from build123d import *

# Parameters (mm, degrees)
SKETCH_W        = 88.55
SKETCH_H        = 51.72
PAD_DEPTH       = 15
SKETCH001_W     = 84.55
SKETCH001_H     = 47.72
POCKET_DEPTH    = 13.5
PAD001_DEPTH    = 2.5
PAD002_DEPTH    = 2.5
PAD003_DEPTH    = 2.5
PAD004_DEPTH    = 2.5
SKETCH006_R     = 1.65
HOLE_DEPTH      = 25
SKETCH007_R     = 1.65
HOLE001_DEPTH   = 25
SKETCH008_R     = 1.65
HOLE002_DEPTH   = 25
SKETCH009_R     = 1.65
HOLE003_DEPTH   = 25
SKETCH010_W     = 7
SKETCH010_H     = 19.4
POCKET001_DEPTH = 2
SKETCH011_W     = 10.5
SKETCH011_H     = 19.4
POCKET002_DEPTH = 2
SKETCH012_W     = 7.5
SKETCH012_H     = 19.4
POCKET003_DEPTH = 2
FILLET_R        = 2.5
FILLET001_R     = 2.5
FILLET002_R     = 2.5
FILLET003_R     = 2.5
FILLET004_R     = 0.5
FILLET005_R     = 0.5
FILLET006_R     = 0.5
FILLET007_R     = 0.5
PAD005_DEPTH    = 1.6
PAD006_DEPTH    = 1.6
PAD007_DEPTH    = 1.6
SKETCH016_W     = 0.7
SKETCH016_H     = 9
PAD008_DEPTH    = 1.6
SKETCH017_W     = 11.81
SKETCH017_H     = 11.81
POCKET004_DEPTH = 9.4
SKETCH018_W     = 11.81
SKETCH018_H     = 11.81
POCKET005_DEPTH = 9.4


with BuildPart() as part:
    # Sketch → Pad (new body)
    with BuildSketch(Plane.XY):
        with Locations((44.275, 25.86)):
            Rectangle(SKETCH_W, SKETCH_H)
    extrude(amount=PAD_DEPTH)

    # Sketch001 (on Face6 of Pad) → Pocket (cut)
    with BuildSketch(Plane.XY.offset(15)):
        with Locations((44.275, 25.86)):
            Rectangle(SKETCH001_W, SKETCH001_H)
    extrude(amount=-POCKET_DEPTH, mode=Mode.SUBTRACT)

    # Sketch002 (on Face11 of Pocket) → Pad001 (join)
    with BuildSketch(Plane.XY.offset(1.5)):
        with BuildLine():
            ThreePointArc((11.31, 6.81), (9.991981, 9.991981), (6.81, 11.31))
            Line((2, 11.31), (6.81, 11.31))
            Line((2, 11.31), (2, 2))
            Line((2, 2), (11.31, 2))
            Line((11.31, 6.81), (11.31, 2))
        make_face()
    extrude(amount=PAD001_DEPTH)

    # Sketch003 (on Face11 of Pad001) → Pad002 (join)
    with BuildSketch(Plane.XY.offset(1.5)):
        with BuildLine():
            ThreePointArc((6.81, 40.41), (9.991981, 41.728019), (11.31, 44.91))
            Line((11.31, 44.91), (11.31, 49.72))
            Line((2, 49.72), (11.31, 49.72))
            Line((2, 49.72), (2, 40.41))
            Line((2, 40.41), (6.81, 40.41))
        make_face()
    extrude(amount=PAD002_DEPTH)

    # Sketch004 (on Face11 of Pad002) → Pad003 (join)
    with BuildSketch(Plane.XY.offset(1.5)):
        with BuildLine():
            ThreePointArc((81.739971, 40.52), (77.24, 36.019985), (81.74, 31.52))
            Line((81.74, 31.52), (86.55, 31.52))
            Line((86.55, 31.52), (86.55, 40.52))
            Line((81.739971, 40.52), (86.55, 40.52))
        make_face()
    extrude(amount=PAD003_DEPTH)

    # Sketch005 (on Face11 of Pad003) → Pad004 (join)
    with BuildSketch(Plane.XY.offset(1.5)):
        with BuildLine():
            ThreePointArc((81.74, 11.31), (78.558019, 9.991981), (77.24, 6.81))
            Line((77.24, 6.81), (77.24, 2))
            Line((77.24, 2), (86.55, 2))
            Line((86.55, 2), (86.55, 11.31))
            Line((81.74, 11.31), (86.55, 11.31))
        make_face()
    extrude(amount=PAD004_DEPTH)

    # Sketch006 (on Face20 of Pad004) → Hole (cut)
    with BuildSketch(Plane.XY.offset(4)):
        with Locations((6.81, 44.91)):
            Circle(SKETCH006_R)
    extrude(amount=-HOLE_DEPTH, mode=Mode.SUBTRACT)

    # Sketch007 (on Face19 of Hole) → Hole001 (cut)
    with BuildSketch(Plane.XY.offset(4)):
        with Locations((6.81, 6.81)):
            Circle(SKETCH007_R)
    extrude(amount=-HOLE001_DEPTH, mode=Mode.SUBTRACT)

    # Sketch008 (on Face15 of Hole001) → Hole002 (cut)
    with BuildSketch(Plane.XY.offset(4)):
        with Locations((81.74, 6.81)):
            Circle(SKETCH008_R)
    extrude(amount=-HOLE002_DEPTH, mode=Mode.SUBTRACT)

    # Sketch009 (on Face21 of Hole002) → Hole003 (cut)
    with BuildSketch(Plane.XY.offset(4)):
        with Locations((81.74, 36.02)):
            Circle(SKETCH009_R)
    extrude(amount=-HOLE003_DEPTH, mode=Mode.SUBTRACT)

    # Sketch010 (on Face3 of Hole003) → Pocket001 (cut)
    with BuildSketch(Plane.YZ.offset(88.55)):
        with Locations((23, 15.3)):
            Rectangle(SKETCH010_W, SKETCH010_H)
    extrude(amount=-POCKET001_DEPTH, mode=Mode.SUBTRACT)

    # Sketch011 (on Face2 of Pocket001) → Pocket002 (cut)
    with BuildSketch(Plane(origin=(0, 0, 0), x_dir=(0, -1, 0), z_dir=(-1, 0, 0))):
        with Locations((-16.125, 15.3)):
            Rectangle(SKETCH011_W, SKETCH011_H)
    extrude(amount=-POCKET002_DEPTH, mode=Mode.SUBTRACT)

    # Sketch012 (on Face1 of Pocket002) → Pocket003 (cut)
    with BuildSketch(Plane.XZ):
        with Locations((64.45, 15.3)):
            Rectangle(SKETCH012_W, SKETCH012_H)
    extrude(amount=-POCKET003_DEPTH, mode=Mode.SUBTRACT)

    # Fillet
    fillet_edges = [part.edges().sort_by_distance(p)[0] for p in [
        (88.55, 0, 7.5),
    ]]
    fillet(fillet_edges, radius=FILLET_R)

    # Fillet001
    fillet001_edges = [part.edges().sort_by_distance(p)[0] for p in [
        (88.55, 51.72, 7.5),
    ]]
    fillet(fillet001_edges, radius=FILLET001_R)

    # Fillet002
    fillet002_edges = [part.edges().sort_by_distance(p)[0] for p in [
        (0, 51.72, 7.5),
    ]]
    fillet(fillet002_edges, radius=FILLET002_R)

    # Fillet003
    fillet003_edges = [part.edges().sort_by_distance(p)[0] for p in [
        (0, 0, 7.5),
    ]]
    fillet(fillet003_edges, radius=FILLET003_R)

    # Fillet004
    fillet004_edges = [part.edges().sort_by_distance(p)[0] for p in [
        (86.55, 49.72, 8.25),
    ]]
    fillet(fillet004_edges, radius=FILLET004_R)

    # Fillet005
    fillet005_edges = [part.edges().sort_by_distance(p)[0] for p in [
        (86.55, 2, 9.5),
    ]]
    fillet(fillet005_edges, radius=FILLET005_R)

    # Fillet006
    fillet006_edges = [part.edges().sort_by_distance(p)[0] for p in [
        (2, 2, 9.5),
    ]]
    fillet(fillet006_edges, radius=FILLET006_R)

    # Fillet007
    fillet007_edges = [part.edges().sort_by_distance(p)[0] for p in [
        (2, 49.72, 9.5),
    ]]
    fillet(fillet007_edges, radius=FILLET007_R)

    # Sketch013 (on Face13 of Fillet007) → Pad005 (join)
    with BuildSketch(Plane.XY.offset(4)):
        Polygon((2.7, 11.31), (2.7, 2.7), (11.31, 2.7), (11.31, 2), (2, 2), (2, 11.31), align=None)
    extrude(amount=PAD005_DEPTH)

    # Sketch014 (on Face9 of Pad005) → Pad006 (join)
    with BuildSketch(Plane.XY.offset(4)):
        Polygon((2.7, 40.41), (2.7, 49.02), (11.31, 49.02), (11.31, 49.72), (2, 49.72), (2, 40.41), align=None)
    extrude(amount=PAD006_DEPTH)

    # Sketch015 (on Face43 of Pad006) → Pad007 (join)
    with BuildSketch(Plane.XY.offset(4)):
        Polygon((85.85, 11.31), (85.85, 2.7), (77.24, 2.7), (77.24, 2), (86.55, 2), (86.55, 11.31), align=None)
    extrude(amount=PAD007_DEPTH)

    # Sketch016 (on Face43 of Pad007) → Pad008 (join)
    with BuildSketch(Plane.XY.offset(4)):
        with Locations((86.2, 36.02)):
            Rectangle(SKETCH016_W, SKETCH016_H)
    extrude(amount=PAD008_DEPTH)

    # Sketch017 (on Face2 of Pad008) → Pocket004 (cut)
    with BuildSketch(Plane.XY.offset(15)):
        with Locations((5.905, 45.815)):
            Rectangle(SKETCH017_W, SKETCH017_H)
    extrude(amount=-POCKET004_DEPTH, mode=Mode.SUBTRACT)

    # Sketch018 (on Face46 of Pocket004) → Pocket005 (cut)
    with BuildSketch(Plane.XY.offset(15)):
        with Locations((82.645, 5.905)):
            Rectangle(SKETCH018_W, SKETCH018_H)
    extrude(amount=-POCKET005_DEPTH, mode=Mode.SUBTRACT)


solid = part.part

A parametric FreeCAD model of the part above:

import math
import FreeCAD as App
import Part
import Sketcher
from FreeCAD import Vector
Q = App.Units.Quantity


def edges_at(feature, points):
    """Names of the edges that pass closest to the given points."""
    edges = feature.Shape.Edges
    near = lambda p: min(range(len(edges)), key=lambda i: edges[i].distToShape(Part.Vertex(*p))[0])
    return sorted({f"Edge{near(p) + 1}" for p in points})


def add_polygon(sketch, points):
    """Adds a closed chain of lines whose ends are joined by coincident constraints."""
    first, n = sketch.GeometryCount, len(points)
    for a, b in zip(points, points[1:] + points[:1]):
        sketch.addGeometry(Part.LineSegment(App.Vector(*a, 0), App.Vector(*b, 0)), False)
    for i in range(n):
        sketch.addConstraint(Sketcher.Constraint("Coincident", first + i, 2, first + (i + 1) % n, 1))

doc = App.newDocument("Part")
body = doc.addObject("PartDesign::Body", "Body")

# Sketch on XY plane
sketch1 = body.newObject("Sketcher::SketchObject", "Sketch")
sketch1.AttachmentSupport = (doc.getObject("XY_Plane"), [""])
sketch1.MapMode = "FlatFace"
add_polygon(sketch1, [(0, 52), (0, 0), (89, 0), (89, 52)])  # lines 0-3
sketch1.addConstraint(Sketcher.Constraint("Vertical", 0))
sketch1.addConstraint(Sketcher.Constraint("Horizontal", 1))
sketch1.addConstraint(Sketcher.Constraint("Vertical", 2))
sketch1.addConstraint(Sketcher.Constraint("Horizontal", 3))
sketch1.addConstraint(Sketcher.Constraint("Coincident", 0, 2, -1, 1))
sketch1.addConstraint(Sketcher.Constraint("DistanceX", 1, 1, 1, 2, Q("88.55 mm")))
sketch1.addConstraint(Sketcher.Constraint("DistanceY", 0, 2, 0, 1, Q("51.72 mm")))
pad1 = body.newObject("PartDesign::Pad", "Pad")
pad1.Profile = sketch1
pad1.Length = 15

# Sketch on XY plane
sketch2 = body.newObject("Sketcher::SketchObject", "Sketch001")
sketch2.AttachmentSupport = (doc.getObject("XY_Plane"), [""])
sketch2.MapMode = "FlatFace"
sketch2.AttachmentOffset = App.Placement(Vector(0, 0, 15), App.Rotation())
add_polygon(sketch2, [(2, 50), (2, 2), (87, 2), (87, 50)])  # lines 0-3
sketch2.addConstraint(Sketcher.Constraint("Vertical", 0))
sketch2.addConstraint(Sketcher.Constraint("Horizontal", 1))
sketch2.addConstraint(Sketcher.Constraint("Vertical", 2))
sketch2.addConstraint(Sketcher.Constraint("Horizontal", 3))
sketch2.addConstraint(Sketcher.Constraint("DistanceX", -1, 1, 0, 2, Q("2 mm")))
sketch2.addConstraint(Sketcher.Constraint("DistanceY", -1, 1, 0, 2, Q("2 mm")))
sketch2.addConstraint(Sketcher.Constraint("DistanceX", 1, 1, 1, 2, Q("84.55 mm")))
sketch2.addConstraint(Sketcher.Constraint("DistanceY", 0, 2, 0, 1, Q("47.72 mm")))
pocket1 = body.newObject("PartDesign::Pocket", "Pocket")
pocket1.Profile = sketch2
pocket1.Length = 13.5

# Sketch on XY plane
sketch3 = body.newObject("Sketcher::SketchObject", "Sketch002")
sketch3.AttachmentSupport = (doc.getObject("XY_Plane"), [""])
sketch3.MapMode = "FlatFace"
sketch3.AttachmentOffset = App.Placement(Vector(0, 0, 1.5), App.Rotation())
sketch3.addGeometry(Part.ArcOfCircle(Part.Circle(Vector(6.8, 6.8, 0), Vector(0, 0, 1), 4.5), math.radians(0), math.radians(90)), False)
sketch3.addGeometry(Part.LineSegment(Vector(6.8, 11.3, 0), Vector(2, 11.3, 0)), False)
sketch3.addGeometry(Part.LineSegment(Vector(2, 11.3, 0), Vector(2, 2, 0)), False)
sketch3.addGeometry(Part.LineSegment(Vector(2, 2, 0), Vector(11.3, 2, 0)), False)
sketch3.addGeometry(Part.LineSegment(Vector(11.3, 2, 0), Vector(11.3, 6.8, 0)), False)
sketch3.addConstraint(Sketcher.Constraint("Tangent", 0, 2, 1, 1))
sketch3.addConstraint(Sketcher.Constraint("Coincident", 1, 2, 2, 1))
sketch3.addConstraint(Sketcher.Constraint("Coincident", 2, 2, 3, 1))
sketch3.addConstraint(Sketcher.Constraint("Coincident", 3, 2, 4, 1))
sketch3.addConstraint(Sketcher.Constraint("Tangent", 4, 2, 0, 1))
sketch3.addConstraint(Sketcher.Constraint("Horizontal", 1))
sketch3.addConstraint(Sketcher.Constraint("Vertical", 2))
sketch3.addConstraint(Sketcher.Constraint("Horizontal", 3))
sketch3.addConstraint(Sketcher.Constraint("Vertical", 4))
sketch3.addConstraint(Sketcher.Constraint("Equal", 3, 2))
sketch3.addConstraint(Sketcher.Constraint("Radius", 0, Q("4.499998 mm")))
sketch3.addConstraint(Sketcher.Constraint("DistanceX", -1, 1, 1, 2, Q("2 mm")))
sketch3.addConstraint(Sketcher.Constraint("DistanceY", -1, 1, 2, 2, Q("2 mm")))
sketch3.addConstraint(Sketcher.Constraint("DistanceX", 1, 2, 1, 1, Q("4.81 mm")))
pad2 = body.newObject("PartDesign::Pad", "Pad001")
pad2.Profile = sketch3
pad2.Length = 2.5

# Sketch on XY plane
sketch4 = body.newObject("Sketcher::SketchObject", "Sketch003")
sketch4.AttachmentSupport = (doc.getObject("XY_Plane"), [""])
sketch4.MapMode = "FlatFace"
sketch4.AttachmentOffset = App.Placement(Vector(0, 0, 1.5), App.Rotation())
sketch4.addGeometry(Part.ArcOfCircle(Part.Circle(Vector(6.8, 44.9, 0), Vector(0, 0, 1), 4.5), math.radians(-90), math.radians(0)), False)
sketch4.addGeometry(Part.LineSegment(Vector(11.3, 44.9, 0), Vector(11.3, 49.7, 0)), False)
sketch4.addGeometry(Part.LineSegment(Vector(11.3, 49.7, 0), Vector(2, 49.7, 0)), False)
sketch4.addGeometry(Part.LineSegment(Vector(2, 49.7, 0), Vector(2, 40.4, 0)), False)
sketch4.addGeometry(Part.LineSegment(Vector(2, 40.4, 0), Vector(6.8, 40.4, 0)), False)
sketch4.addConstraint(Sketcher.Constraint("Tangent", 0, 2, 1, 1))
sketch4.addConstraint(Sketcher.Constraint("Coincident", 1, 2, 2, 1))
sketch4.addConstraint(Sketcher.Constraint("Coincident", 2, 2, 3, 1))
sketch4.addConstraint(Sketcher.Constraint("Coincident", 3, 2, 4, 1))
sketch4.addConstraint(Sketcher.Constraint("Tangent", 4, 2, 0, 1))
sketch4.addConstraint(Sketcher.Constraint("Vertical", 1))
sketch4.addConstraint(Sketcher.Constraint("Horizontal", 2))
sketch4.addConstraint(Sketcher.Constraint("Vertical", 3))
sketch4.addConstraint(Sketcher.Constraint("Horizontal", 4))
sketch4.addConstraint(Sketcher.Constraint("Equal", 4, 1))
sketch4.addConstraint(Sketcher.Constraint("Radius", 0, Q("4.499998 mm")))
sketch4.addConstraint(Sketcher.Constraint("DistanceX", -1, 1, 2, 2, Q("2 mm")))
sketch4.addConstraint(Sketcher.Constraint("DistanceX", 2, 2, 2, 1, Q("9.31 mm")))
sketch4.addConstraint(Sketcher.Constraint("DistanceY", -1, 1, 0, 3, Q("44.909998 mm")))
pad3 = body.newObject("PartDesign::Pad", "Pad002")
pad3.Profile = sketch4
pad3.Length = 2.5

# Sketch on XY plane
sketch5 = body.newObject("Sketcher::SketchObject", "Sketch004")
sketch5.AttachmentSupport = (doc.getObject("XY_Plane"), [""])
sketch5.MapMode = "FlatFace"
sketch5.AttachmentOffset = App.Placement(Vector(0, 0, 1.5), App.Rotation())
sketch5.addGeometry(Part.ArcOfCircle(Part.Circle(Vector(81.7, 36, 0), Vector(0, 0, 1), 4.5), math.radians(90), math.radians(270)), False)
sketch5.addGeometry(Part.LineSegment(Vector(81.7, 31.5, 0), Vector(86.5, 31.5, 0)), False)
sketch5.addGeometry(Part.LineSegment(Vector(86.5, 31.5, 0), Vector(86.5, 40.5, 0)), False)
sketch5.addGeometry(Part.LineSegment(Vector(86.5, 40.5, 0), Vector(81.7, 40.5, 0)), False)
sketch5.addConstraint(Sketcher.Constraint("Tangent", 0, 2, 1, 1))
sketch5.addConstraint(Sketcher.Constraint("Coincident", 1, 2, 2, 1))
sketch5.addConstraint(Sketcher.Constraint("Coincident", 2, 2, 3, 1))
sketch5.addConstraint(Sketcher.Constraint("Coincident", 3, 2, 0, 1))
sketch5.addConstraint(Sketcher.Constraint("Horizontal", 1))
sketch5.addConstraint(Sketcher.Constraint("Vertical", 2))
sketch5.addConstraint(Sketcher.Constraint("Horizontal", 3))
sketch5.addConstraint(Sketcher.Constraint("Radius", 0, Q("4.5 mm")))
sketch5.addConstraint(Sketcher.Constraint("DistanceX", 1, 1, 1, 2, Q("4.81 mm")))
sketch5.addConstraint(Sketcher.Constraint("DistanceX", -1, 1, 0, 3, Q("81.74 mm")))
sketch5.addConstraint(Sketcher.Constraint("DistanceY", -1, 1, 0, 3, Q("36.02 mm")))
sketch5.addConstraint(Sketcher.Constraint("DistanceX", 3, 2, 3, 1, Q("4.810029 mm")))
pad4 = body.newObject("PartDesign::Pad", "Pad003")
pad4.Profile = sketch5
pad4.Length = 2.5

# Sketch on XY plane
sketch6 = body.newObject("Sketcher::SketchObject", "Sketch005")
sketch6.AttachmentSupport = (doc.getObject("XY_Plane"), [""])
sketch6.MapMode = "FlatFace"
sketch6.AttachmentOffset = App.Placement(Vector(0, 0, 1.5), App.Rotation())
sketch6.addGeometry(Part.ArcOfCircle(Part.Circle(Vector(81.7, 6.8, 0), Vector(0, 0, 1), 4.5), math.radians(90), math.radians(180)), False)
sketch6.addGeometry(Part.LineSegment(Vector(77.2, 6.8, 0), Vector(77.2, 2, 0)), False)
sketch6.addGeometry(Part.LineSegment(Vector(77.2, 2, 0), Vector(86.5, 2, 0)), False)
sketch6.addGeometry(Part.LineSegment(Vector(86.5, 2, 0), Vector(86.5, 11.3, 0)), False)
sketch6.addGeometry(Part.LineSegment(Vector(86.5, 11.3, 0), Vector(81.7, 11.3, 0)), False)
sketch6.addConstraint(Sketcher.Constraint("Tangent", 0, 2, 1, 1))
sketch6.addConstraint(Sketcher.Constraint("Coincident", 1, 2, 2, 1))
sketch6.addConstraint(Sketcher.Constraint("Coincident", 2, 2, 3, 1))
sketch6.addConstraint(Sketcher.Constraint("Coincident", 3, 2, 4, 1))
sketch6.addConstraint(Sketcher.Constraint("Tangent", 4, 2, 0, 1))
sketch6.addConstraint(Sketcher.Constraint("Vertical", 1))
sketch6.addConstraint(Sketcher.Constraint("Horizontal", 2))
sketch6.addConstraint(Sketcher.Constraint("Vertical", 3))
sketch6.addConstraint(Sketcher.Constraint("Horizontal", 4))
sketch6.addConstraint(Sketcher.Constraint("Equal", 4, 1))
sketch6.addConstraint(Sketcher.Constraint("Radius", 0, Q("4.499998 mm")))
sketch6.addConstraint(Sketcher.Constraint("DistanceY", -1, 1, 1, 2, Q("2 mm")))
sketch6.addConstraint(Sketcher.Constraint("DistanceX", 2, 1, 2, 2, Q("9.31 mm")))
sketch6.addConstraint(Sketcher.Constraint("DistanceX", -1, 1, 0, 3, Q("81.739998 mm")))
pad5 = body.newObject("PartDesign::Pad", "Pad004")
pad5.Profile = sketch6
pad5.Length = 2.5

# Sketch on XY plane
sketch7 = body.newObject("Sketcher::SketchObject", "Sketch006")
sketch7.AttachmentSupport = (doc.getObject("XY_Plane"), [""])
sketch7.MapMode = "FlatFace"
sketch7.AttachmentOffset = App.Placement(Vector(0, 0, 4), App.Rotation())
sketch7.addGeometry(Part.Circle(Vector(6.8, 44.9, 0), Vector(0, 0, 1), 1.6), False)
sketch7.addConstraint(Sketcher.Constraint("Diameter", 0, Q("3.3 mm")))
sketch7.addConstraint(Sketcher.Constraint("DistanceX", -1, 1, 0, 3, Q("6.81 mm")))
sketch7.addConstraint(Sketcher.Constraint("DistanceY", -1, 1, 0, 3, Q("44.91 mm")))
pocket2 = body.newObject("PartDesign::Pocket", "Pocket001")
pocket2.Profile = sketch7
pocket2.Length = 25

# Sketch on XY plane
sketch8 = body.newObject("Sketcher::SketchObject", "Sketch007")
sketch8.AttachmentSupport = (doc.getObject("XY_Plane"), [""])
sketch8.MapMode = "FlatFace"
sketch8.AttachmentOffset = App.Placement(Vector(0, 0, 4), App.Rotation())
sketch8.addGeometry(Part.Circle(Vector(6.8, 6.8, 0), Vector(0, 0, 1), 1.6), False)
sketch8.addConstraint(Sketcher.Constraint("Diameter", 0, Q("3.3 mm")))
sketch8.addConstraint(Sketcher.Constraint("DistanceX", -1, 1, 0, 3, Q("6.81 mm")))
sketch8.addConstraint(Sketcher.Constraint("DistanceY", -1, 1, 0, 3, Q("6.81 mm")))
pocket3 = body.newObject("PartDesign::Pocket", "Pocket002")
pocket3.Profile = sketch8
pocket3.Length = 25

# Sketch on XY plane
sketch9 = body.newObject("Sketcher::SketchObject", "Sketch008")
sketch9.AttachmentSupport = (doc.getObject("XY_Plane"), [""])
sketch9.MapMode = "FlatFace"
sketch9.AttachmentOffset = App.Placement(Vector(0, 0, 4), App.Rotation())
sketch9.addGeometry(Part.Circle(Vector(81.7, 6.8, 0), Vector(0, 0, 1), 1.6), False)
sketch9.addConstraint(Sketcher.Constraint("Diameter", 0, Q("3.3 mm")))
sketch9.addConstraint(Sketcher.Constraint("DistanceX", -1, 1, 0, 3, Q("81.74 mm")))
sketch9.addConstraint(Sketcher.Constraint("DistanceY", -1, 1, 0, 3, Q("6.81 mm")))
pocket4 = body.newObject("PartDesign::Pocket", "Pocket003")
pocket4.Profile = sketch9
pocket4.Length = 25

# Sketch on XY plane
sketch10 = body.newObject("Sketcher::SketchObject", "Sketch009")
sketch10.AttachmentSupport = (doc.getObject("XY_Plane"), [""])
sketch10.MapMode = "FlatFace"
sketch10.AttachmentOffset = App.Placement(Vector(0, 0, 4), App.Rotation())
sketch10.addGeometry(Part.Circle(Vector(81.7, 36, 0), Vector(0, 0, 1), 1.6), False)
sketch10.addConstraint(Sketcher.Constraint("Diameter", 0, Q("3.3 mm")))
sketch10.addConstraint(Sketcher.Constraint("DistanceX", -1, 1, 0, 3, Q("81.74 mm")))
sketch10.addConstraint(Sketcher.Constraint("DistanceY", -1, 1, 0, 3, Q("36.02 mm")))
pocket5 = body.newObject("PartDesign::Pocket", "Pocket004")
pocket5.Profile = sketch10
pocket5.Length = 25

# Sketch on YZ plane
sketch11 = body.newObject("Sketcher::SketchObject", "Sketch010")
sketch11.AttachmentSupport = (doc.getObject("YZ_Plane"), [""])
sketch11.MapMode = "FlatFace"
sketch11.AttachmentOffset = App.Placement(Vector(0, 0, 88.55), App.Rotation())
add_polygon(sketch11, [(20, 25), (20, 6), (26, 6), (26, 25)])  # lines 0-3
sketch11.addConstraint(Sketcher.Constraint("Vertical", 0))
sketch11.addConstraint(Sketcher.Constraint("Horizontal", 1))
sketch11.addConstraint(Sketcher.Constraint("Vertical", 2))
sketch11.addConstraint(Sketcher.Constraint("Horizontal", 3))
sketch11.addConstraint(Sketcher.Constraint("DistanceX", 1, 1, 1, 2, Q("7 mm")))
sketch11.addConstraint(Sketcher.Constraint("DistanceY", 0, 2, 0, 1, Q("19.4 mm")))
sketch11.addConstraint(Sketcher.Constraint("DistanceY", -1, 1, 2, 2, Q("25 mm")))
sketch11.addConstraint(Sketcher.Constraint("DistanceX", -1, 1, 0, 2, Q("19.5 mm")))
pocket6 = body.newObject("PartDesign::Pocket", "Pocket005")
pocket6.Profile = sketch11
pocket6.Length = 2

# Sketch on YZ plane
sketch12 = body.newObject("Sketcher::SketchObject", "Sketch011")
sketch12.AttachmentSupport = (doc.getObject("YZ_Plane"), [""])
sketch12.MapMode = "FlatFace"
add_polygon(sketch12, [(21, 25), (21, 6), (11, 6), (11, 25)])  # lines 0-3
sketch12.addConstraint(Sketcher.Constraint("Vertical", 0))
sketch12.addConstraint(Sketcher.Constraint("Horizontal", 1))
sketch12.addConstraint(Sketcher.Constraint("Vertical", 2))
sketch12.addConstraint(Sketcher.Constraint("Horizontal", 3))
sketch12.addConstraint(Sketcher.Constraint("DistanceX", 1, 2, 1, 1, Q("10.5 mm")))
sketch12.addConstraint(Sketcher.Constraint("DistanceY", 0, 2, 0, 1, Q("19.4 mm")))
sketch12.addConstraint(Sketcher.Constraint("DistanceY", -1, 1, 2, 2, Q("25 mm")))
sketch12.addConstraint(Sketcher.Constraint("DistanceX", -1, 1, 0, 2, Q("21.375 mm")))
pocket7 = body.newObject("PartDesign::Pocket", "Pocket006")
pocket7.Profile = sketch12
pocket7.Length = 2
pocket7.Reversed = True

# Sketch on XZ plane
sketch13 = body.newObject("Sketcher::SketchObject", "Sketch012")
sketch13.AttachmentSupport = (doc.getObject("XZ_Plane"), [""])
sketch13.MapMode = "FlatFace"
add_polygon(sketch13, [(61, 25), (61, 6), (68, 6), (68, 25)])  # lines 0-3
sketch13.addConstraint(Sketcher.Constraint("Vertical", 0))
sketch13.addConstraint(Sketcher.Constraint("Horizontal", 1))
sketch13.addConstraint(Sketcher.Constraint("Vertical", 2))
sketch13.addConstraint(Sketcher.Constraint("Horizontal", 3))
sketch13.addConstraint(Sketcher.Constraint("DistanceX", 1, 1, 1, 2, Q("7.5 mm")))
sketch13.addConstraint(Sketcher.Constraint("DistanceY", 0, 2, 0, 1, Q("19.4 mm")))
sketch13.addConstraint(Sketcher.Constraint("DistanceY", -1, 1, 2, 2, Q("25 mm")))
sketch13.addConstraint(Sketcher.Constraint("DistanceX", -1, 1, 0, 2, Q("60.7 mm")))
pocket8 = body.newObject("PartDesign::Pocket", "Pocket007")
pocket8.Profile = sketch13
pocket8.Length = 2
doc.recompute()

fillet = body.newObject("PartDesign::Fillet", "Fillet")
fillet.Base = (pocket8, edges_at(pocket8, [(88.55, 0, 7.5)]))
fillet.Radius = 2.5
doc.recompute()

fillet2 = body.newObject("PartDesign::Fillet", "Fillet001")
fillet2.Base = (fillet, edges_at(fillet, [(88.55, 51.72, 7.5)]))
fillet2.Radius = 2.5
doc.recompute()

fillet3 = body.newObject("PartDesign::Fillet", "Fillet002")
fillet3.Base = (fillet2, edges_at(fillet2, [(0, 51.72, 7.5)]))
fillet3.Radius = 2.5
doc.recompute()

fillet4 = body.newObject("PartDesign::Fillet", "Fillet003")
fillet4.Base = (fillet3, edges_at(fillet3, [(0, 0, 7.5)]))
fillet4.Radius = 2.5
doc.recompute()

fillet5 = body.newObject("PartDesign::Fillet", "Fillet004")
fillet5.Base = (fillet4, edges_at(fillet4, [(86.55, 49.72, 8.25)]))
fillet5.Radius = 0.5
doc.recompute()

fillet6 = body.newObject("PartDesign::Fillet", "Fillet005")
fillet6.Base = (fillet5, edges_at(fillet5, [(86.55, 2, 9.5)]))
fillet6.Radius = 0.5
doc.recompute()

fillet7 = body.newObject("PartDesign::Fillet", "Fillet006")
fillet7.Base = (fillet6, edges_at(fillet6, [(2, 2, 9.5)]))
fillet7.Radius = 0.5
doc.recompute()

fillet8 = body.newObject("PartDesign::Fillet", "Fillet007")
fillet8.Base = (fillet7, edges_at(fillet7, [(2, 49.72, 9.5)]))
fillet8.Radius = 0.5

# Sketch on XY plane
sketch14 = body.newObject("Sketcher::SketchObject", "Sketch013")
sketch14.AttachmentSupport = (doc.getObject("XY_Plane"), [""])
sketch14.MapMode = "FlatFace"
sketch14.AttachmentOffset = App.Placement(Vector(0, 0, 4), App.Rotation())
add_polygon(sketch14, [(2.7, 2.7), (2.7, 11.3), (2, 11.3), (2, 2), (11.3, 2), (11.3, 2.7)])  # lines 0-5
sketch14.addConstraint(Sketcher.Constraint("Vertical", 0))
sketch14.addConstraint(Sketcher.Constraint("Horizontal", 1))
sketch14.addConstraint(Sketcher.Constraint("Vertical", 2))
sketch14.addConstraint(Sketcher.Constraint("Horizontal", 3))
sketch14.addConstraint(Sketcher.Constraint("Vertical", 4))
sketch14.addConstraint(Sketcher.Constraint("Horizontal", 5))
sketch14.addConstraint(Sketcher.Constraint("Equal", 5, 0))
sketch14.addConstraint(Sketcher.Constraint("Equal", 3, 2))
sketch14.addConstraint(Sketcher.Constraint("DistanceX", 1, 2, 1, 1, Q("0.7 mm")))
sketch14.addConstraint(Sketcher.Constraint("DistanceX", -1, 1, 1, 2, Q("2 mm")))
sketch14.addConstraint(Sketcher.Constraint("DistanceY", -1, 1, 2, 2, Q("2 mm")))
sketch14.addConstraint(Sketcher.Constraint("DistanceX", 3, 1, 3, 2, Q("9.31 mm")))
pad6 = body.newObject("PartDesign::Pad", "Pad005")
pad6.Profile = sketch14
pad6.Length = 1.6

# Sketch on XY plane
sketch15 = body.newObject("Sketcher::SketchObject", "Sketch014")
sketch15.AttachmentSupport = (doc.getObject("XY_Plane"), [""])
sketch15.MapMode = "FlatFace"
sketch15.AttachmentOffset = App.Placement(Vector(0, 0, 4), App.Rotation())
add_polygon(sketch15, [(2.7, 40.4), (2.7, 49), (11.3, 49), (11.3, 49.7), (2, 49.7), (2, 40.4)])  # lines 0-5
sketch15.addConstraint(Sketcher.Constraint("Vertical", 0))
sketch15.addConstraint(Sketcher.Constraint("Horizontal", 1))
sketch15.addConstraint(Sketcher.Constraint("Vertical", 2))
sketch15.addConstraint(Sketcher.Constraint("Horizontal", 3))
sketch15.addConstraint(Sketcher.Constraint("Vertical", 4))
sketch15.addConstraint(Sketcher.Constraint("Horizontal", 5))
sketch15.addConstraint(Sketcher.Constraint("Equal", 1, 0))
sketch15.addConstraint(Sketcher.Constraint("Equal", 5, 2))
sketch15.addConstraint(Sketcher.Constraint("DistanceX", 5, 1, 5, 2, Q("0.7 mm")))
sketch15.addConstraint(Sketcher.Constraint("DistanceX", -1, 1, 3, 2, Q("2 mm")))
sketch15.addConstraint(Sketcher.Constraint("DistanceX", 1, 1, 1, 2, Q("8.61 mm")))
sketch15.addConstraint(Sketcher.Constraint("DistanceY", -1, 1, 0, 2, Q("49.02 mm")))
pad7 = body.newObject("PartDesign::Pad", "Pad006")
pad7.Profile = sketch15
pad7.Length = 1.6

# Sketch on XY plane
sketch16 = body.newObject("Sketcher::SketchObject", "Sketch015")
sketch16.AttachmentSupport = (doc.getObject("XY_Plane"), [""])
sketch16.MapMode = "FlatFace"
sketch16.AttachmentOffset = App.Placement(Vector(0, 0, 4), App.Rotation())
add_polygon(sketch16, [(85.8, 11.3), (85.8, 2.7), (77.2, 2.7), (77.2, 2), (86.5, 2), (86.5, 11.3)])  # lines 0-5
sketch16.addConstraint(Sketcher.Constraint("Vertical", 0))
sketch16.addConstraint(Sketcher.Constraint("Horizontal", 1))
sketch16.addConstraint(Sketcher.Constraint("Vertical", 2))
sketch16.addConstraint(Sketcher.Constraint("Horizontal", 3))
sketch16.addConstraint(Sketcher.Constraint("Vertical", 4))
sketch16.addConstraint(Sketcher.Constraint("Horizontal", 5))
sketch16.addConstraint(Sketcher.Constraint("Equal", 1, 0))
sketch16.addConstraint(Sketcher.Constraint("Equal", 5, 2))
sketch16.addConstraint(Sketcher.Constraint("DistanceX", 5, 2, 5, 1, Q("0.7 mm")))
sketch16.addConstraint(Sketcher.Constraint("DistanceY", -1, 1, 2, 2, Q("2 mm")))
sketch16.addConstraint(Sketcher.Constraint("DistanceX", 1, 2, 1, 1, Q("8.61 mm")))
sketch16.addConstraint(Sketcher.Constraint("DistanceX", -1, 1, 0, 2, Q("85.85 mm")))
pad8 = body.newObject("PartDesign::Pad", "Pad007")
pad8.Profile = sketch16
pad8.Length = 1.6

# Sketch on XY plane
sketch17 = body.newObject("Sketcher::SketchObject", "Sketch016")
sketch17.AttachmentSupport = (doc.getObject("XY_Plane"), [""])
sketch17.MapMode = "FlatFace"
sketch17.AttachmentOffset = App.Placement(Vector(0, 0, 4), App.Rotation())
add_polygon(sketch17, [(85.8, 40.5), (85.8, 31.5), (86.5, 31.5), (86.5, 40.5)])  # lines 0-3
sketch17.addConstraint(Sketcher.Constraint("Vertical", 0))
sketch17.addConstraint(Sketcher.Constraint("Horizontal", 1))
sketch17.addConstraint(Sketcher.Constraint("Vertical", 2))
sketch17.addConstraint(Sketcher.Constraint("Horizontal", 3))
sketch17.addConstraint(Sketcher.Constraint("DistanceY", 0, 2, 0, 1, Q("9 mm")))
sketch17.addConstraint(Sketcher.Constraint("DistanceX", 1, 1, 1, 2, Q("0.7 mm")))
sketch17.addConstraint(Sketcher.Constraint("DistanceX", -1, 1, 0, 2, Q("85.85 mm")))
sketch17.addConstraint(Sketcher.Constraint("DistanceY", -1, 1, 0, 2, Q("31.52 mm")))
pad9 = body.newObject("PartDesign::Pad", "Pad008")
pad9.Profile = sketch17
pad9.Length = 1.6

# Sketch on XY plane
sketch18 = body.newObject("Sketcher::SketchObject", "Sketch017")
sketch18.AttachmentSupport = (doc.getObject("XY_Plane"), [""])
sketch18.MapMode = "FlatFace"
sketch18.AttachmentOffset = App.Placement(Vector(0, 0, 15), App.Rotation())
add_polygon(sketch18, [(0, 52), (0, 40), (12, 40), (12, 52)])  # lines 0-3
sketch18.addConstraint(Sketcher.Constraint("Vertical", 0))
sketch18.addConstraint(Sketcher.Constraint("Horizontal", 1))
sketch18.addConstraint(Sketcher.Constraint("Vertical", 2))
sketch18.addConstraint(Sketcher.Constraint("Horizontal", 3))
sketch18.addConstraint(Sketcher.Constraint("PointOnObject", 0, 2, -2))
sketch18.addConstraint(Sketcher.Constraint("Equal", 3, 0))
sketch18.addConstraint(Sketcher.Constraint("DistanceX", 1, 1, 1, 2, Q("11.81 mm")))
sketch18.addConstraint(Sketcher.Constraint("DistanceY", -1, 1, 0, 2, Q("39.91 mm")))
pocket9 = body.newObject("PartDesign::Pocket", "Pocket008")
pocket9.Profile = sketch18
pocket9.Length = 9.4

# Sketch on XY plane
sketch19 = body.newObject("Sketcher::SketchObject", "Sketch018")
sketch19.AttachmentSupport = (doc.getObject("XY_Plane"), [""])
sketch19.MapMode = "FlatFace"
sketch19.AttachmentOffset = App.Placement(Vector(0, 0, 15), App.Rotation())
add_polygon(sketch19, [(77, 12), (77, 0), (89, 0), (89, 12)])  # lines 0-3
sketch19.addConstraint(Sketcher.Constraint("Vertical", 0))
sketch19.addConstraint(Sketcher.Constraint("Horizontal", 1))
sketch19.addConstraint(Sketcher.Constraint("Vertical", 2))
sketch19.addConstraint(Sketcher.Constraint("Horizontal", 3))
sketch19.addConstraint(Sketcher.Constraint("PointOnObject", 0, 2, -1))
sketch19.addConstraint(Sketcher.Constraint("Equal", 3, 0))
sketch19.addConstraint(Sketcher.Constraint("DistanceX", 1, 1, 1, 2, Q("11.81 mm")))
sketch19.addConstraint(Sketcher.Constraint("DistanceX", -1, 1, 0, 2, Q("76.74 mm")))
pocket10 = body.newObject("PartDesign::Pocket", "Pocket009")
pocket10.Profile = sketch19
pocket10.Length = 9.4

doc.recompute()
